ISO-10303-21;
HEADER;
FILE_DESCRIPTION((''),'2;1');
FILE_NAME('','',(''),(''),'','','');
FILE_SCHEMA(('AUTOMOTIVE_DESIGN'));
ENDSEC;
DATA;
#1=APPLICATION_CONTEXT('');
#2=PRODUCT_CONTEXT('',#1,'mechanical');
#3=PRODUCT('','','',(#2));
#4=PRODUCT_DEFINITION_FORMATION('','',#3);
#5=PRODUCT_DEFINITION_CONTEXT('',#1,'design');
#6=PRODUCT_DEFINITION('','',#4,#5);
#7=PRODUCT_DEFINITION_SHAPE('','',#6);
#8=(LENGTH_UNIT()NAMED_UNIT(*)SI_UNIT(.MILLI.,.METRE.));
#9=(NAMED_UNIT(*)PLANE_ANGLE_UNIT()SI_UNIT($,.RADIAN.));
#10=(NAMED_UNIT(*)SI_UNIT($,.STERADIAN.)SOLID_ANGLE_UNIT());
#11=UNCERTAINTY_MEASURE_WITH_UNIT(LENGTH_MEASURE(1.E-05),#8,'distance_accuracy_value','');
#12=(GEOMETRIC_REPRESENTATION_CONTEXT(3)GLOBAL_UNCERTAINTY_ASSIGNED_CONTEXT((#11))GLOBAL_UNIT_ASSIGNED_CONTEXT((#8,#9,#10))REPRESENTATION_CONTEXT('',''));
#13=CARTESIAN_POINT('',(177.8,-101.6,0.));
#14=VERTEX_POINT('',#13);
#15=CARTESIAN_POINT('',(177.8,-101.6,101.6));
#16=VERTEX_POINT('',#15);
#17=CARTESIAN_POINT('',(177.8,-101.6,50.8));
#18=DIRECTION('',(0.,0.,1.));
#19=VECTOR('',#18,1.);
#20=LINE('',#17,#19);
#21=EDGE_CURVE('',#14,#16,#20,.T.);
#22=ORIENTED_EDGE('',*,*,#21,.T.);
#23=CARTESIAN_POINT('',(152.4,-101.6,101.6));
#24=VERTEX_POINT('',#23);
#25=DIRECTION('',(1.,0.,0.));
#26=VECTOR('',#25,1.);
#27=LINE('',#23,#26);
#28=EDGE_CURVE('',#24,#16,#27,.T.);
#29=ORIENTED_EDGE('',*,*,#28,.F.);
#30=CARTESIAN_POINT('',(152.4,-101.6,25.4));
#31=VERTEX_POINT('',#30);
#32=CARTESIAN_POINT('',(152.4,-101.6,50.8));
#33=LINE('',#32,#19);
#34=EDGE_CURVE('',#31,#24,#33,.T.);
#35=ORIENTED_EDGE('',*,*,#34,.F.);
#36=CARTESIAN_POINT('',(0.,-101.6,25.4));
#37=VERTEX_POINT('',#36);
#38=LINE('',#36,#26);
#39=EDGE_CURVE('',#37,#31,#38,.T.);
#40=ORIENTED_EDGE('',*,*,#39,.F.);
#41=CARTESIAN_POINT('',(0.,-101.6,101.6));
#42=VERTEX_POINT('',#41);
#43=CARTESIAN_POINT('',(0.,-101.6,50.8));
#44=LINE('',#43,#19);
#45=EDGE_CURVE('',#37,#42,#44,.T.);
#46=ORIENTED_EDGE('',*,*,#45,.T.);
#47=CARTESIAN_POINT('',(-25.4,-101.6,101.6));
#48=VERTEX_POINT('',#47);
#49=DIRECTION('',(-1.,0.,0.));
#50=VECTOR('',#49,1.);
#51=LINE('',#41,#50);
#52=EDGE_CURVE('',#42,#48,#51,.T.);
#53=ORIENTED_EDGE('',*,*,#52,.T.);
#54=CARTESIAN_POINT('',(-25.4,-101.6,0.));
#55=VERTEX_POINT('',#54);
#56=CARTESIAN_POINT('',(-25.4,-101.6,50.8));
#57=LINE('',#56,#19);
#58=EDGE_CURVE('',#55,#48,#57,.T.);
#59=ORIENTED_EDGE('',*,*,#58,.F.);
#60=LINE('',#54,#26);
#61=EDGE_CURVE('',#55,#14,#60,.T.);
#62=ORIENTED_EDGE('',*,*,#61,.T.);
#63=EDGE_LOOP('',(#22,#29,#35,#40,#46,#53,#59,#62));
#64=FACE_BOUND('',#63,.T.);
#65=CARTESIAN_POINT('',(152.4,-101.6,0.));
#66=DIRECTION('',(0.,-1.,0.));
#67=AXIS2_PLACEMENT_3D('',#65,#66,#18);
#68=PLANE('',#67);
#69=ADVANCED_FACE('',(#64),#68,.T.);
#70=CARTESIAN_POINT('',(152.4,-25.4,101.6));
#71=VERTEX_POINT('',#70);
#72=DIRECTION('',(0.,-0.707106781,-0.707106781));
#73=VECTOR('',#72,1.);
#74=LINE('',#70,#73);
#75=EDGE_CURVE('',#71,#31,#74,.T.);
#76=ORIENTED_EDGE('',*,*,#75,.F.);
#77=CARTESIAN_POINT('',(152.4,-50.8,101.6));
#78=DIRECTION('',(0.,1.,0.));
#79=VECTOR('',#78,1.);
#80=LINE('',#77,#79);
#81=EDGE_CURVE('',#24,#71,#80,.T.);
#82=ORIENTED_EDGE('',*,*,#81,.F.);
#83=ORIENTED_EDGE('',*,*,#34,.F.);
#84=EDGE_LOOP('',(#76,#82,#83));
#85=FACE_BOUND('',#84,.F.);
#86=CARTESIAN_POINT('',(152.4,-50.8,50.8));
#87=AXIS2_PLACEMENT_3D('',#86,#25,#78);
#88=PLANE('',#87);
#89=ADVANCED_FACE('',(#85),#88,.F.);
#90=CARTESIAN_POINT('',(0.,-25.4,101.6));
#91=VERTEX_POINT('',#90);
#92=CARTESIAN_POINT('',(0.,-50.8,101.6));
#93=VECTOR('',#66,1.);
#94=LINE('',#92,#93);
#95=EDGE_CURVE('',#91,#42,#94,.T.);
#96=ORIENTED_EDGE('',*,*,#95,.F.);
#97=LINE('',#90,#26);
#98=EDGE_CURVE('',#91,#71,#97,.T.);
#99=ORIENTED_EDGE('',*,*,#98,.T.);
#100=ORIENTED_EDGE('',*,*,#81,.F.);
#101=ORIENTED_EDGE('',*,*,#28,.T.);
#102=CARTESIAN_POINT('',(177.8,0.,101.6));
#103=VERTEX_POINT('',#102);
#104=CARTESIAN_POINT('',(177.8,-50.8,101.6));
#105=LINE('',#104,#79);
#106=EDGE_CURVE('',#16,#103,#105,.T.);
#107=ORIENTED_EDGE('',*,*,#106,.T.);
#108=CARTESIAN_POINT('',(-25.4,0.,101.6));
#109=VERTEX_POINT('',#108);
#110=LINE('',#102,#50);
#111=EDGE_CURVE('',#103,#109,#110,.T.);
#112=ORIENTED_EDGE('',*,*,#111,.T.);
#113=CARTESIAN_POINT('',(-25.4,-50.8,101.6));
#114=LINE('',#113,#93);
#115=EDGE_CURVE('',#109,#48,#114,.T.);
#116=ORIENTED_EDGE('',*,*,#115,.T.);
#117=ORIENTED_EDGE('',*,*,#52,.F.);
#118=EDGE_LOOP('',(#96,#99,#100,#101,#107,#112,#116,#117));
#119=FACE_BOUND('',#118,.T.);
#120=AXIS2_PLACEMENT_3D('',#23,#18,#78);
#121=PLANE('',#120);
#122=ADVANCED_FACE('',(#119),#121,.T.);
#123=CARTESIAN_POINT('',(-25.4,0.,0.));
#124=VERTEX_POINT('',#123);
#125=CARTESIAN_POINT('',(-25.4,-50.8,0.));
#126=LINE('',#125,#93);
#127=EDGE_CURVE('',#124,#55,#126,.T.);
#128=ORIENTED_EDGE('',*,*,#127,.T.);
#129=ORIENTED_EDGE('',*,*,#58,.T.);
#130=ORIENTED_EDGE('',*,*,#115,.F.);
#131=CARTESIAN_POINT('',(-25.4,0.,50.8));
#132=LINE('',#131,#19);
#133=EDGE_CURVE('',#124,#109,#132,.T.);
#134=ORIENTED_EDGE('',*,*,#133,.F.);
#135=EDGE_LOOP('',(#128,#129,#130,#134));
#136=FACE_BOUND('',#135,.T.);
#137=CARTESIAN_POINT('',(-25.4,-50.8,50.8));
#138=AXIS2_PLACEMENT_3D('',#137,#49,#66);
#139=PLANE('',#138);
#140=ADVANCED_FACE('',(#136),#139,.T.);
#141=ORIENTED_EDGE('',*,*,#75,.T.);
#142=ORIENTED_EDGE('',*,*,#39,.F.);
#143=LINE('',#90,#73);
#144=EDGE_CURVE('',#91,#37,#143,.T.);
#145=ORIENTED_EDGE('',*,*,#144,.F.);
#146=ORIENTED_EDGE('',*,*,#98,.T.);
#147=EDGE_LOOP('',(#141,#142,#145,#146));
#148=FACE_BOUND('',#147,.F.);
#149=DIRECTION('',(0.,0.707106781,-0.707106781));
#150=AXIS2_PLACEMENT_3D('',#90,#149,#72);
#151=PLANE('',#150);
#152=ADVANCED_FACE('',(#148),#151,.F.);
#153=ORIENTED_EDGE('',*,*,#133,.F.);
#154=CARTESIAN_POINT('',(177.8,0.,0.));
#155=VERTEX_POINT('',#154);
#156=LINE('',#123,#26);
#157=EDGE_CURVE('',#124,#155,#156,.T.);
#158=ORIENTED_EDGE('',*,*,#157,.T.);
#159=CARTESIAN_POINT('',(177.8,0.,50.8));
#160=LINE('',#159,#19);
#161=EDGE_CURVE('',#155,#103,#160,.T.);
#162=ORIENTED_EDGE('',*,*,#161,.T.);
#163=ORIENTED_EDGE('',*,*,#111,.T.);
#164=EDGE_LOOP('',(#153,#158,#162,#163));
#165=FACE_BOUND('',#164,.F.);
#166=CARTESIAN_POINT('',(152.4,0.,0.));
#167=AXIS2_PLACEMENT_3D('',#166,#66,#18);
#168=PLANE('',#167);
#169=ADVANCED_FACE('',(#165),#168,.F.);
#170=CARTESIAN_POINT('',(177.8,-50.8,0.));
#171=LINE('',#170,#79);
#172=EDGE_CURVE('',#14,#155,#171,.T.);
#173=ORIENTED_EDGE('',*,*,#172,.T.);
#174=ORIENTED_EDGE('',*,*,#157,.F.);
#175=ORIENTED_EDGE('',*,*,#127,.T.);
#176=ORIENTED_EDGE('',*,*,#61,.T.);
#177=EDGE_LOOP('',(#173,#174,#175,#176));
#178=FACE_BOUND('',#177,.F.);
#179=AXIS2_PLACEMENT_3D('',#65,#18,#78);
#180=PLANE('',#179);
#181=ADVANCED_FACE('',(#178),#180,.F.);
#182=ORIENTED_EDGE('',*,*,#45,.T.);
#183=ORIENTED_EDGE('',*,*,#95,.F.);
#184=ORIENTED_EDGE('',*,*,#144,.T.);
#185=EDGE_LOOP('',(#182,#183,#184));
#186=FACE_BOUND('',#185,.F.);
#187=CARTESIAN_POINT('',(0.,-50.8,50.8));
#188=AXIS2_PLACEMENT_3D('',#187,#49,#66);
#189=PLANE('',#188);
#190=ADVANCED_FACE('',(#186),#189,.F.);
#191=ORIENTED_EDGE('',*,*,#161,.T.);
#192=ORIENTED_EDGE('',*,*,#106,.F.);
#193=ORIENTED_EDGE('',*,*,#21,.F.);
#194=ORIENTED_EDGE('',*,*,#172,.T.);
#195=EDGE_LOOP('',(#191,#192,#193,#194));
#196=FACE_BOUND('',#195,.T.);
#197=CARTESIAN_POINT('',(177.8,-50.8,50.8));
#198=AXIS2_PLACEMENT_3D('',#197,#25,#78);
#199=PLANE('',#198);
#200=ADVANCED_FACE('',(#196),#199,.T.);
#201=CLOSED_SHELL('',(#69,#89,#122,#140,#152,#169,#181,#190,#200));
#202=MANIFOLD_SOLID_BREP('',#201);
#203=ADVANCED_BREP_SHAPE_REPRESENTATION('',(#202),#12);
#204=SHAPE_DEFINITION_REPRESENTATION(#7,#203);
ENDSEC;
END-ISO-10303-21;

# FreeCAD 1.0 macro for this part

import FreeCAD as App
import Part
import Sketcher

V = App.Vector
Q = App.Units.Quantity

doc = App.newDocument("Part")
body = doc.addObject("PartDesign::Body", "Body")

sketch1 = body.newObject("Sketcher::SketchObject", "Sketch")
sketch1.AttachmentSupport = (doc.getObject("YZ_Plane"), [""])
sketch1.MapMode = "FlatFace"
sketch1.addGeometry([
    Part.LineSegment(V(-102, 0, 0), V(0, 0, 0)),
    Part.LineSegment(V(0, 0, 0), V(0, 102, 0)),
    Part.LineSegment(V(0, 102, 0), V(-25, 102, 0)),
    Part.LineSegment(V(-25, 102, 0), V(-102, 25, 0)),
    Part.LineSegment(V(-102, 25, 0), V(-102, 0, 0)),
], False)
sketch1.addConstraint([
    Sketcher.Constraint("Coincident", 0, 2, 1, 1),
    Sketcher.Constraint("Coincident", 1, 2, 2, 1),
    Sketcher.Constraint("Coincident", 2, 2, 3, 1),
    Sketcher.Constraint("Coincident", 3, 2, 4, 1),
    Sketcher.Constraint("Coincident", 4, 2, 0, 1),
    Sketcher.Constraint("Horizontal", 0),
    Sketcher.Constraint("Vertical", 1),
    Sketcher.Constraint("Horizontal", 2),
    Sketcher.Constraint("Vertical", 4),
    Sketcher.Constraint("Coincident", 0, 2, -1, 1),
    Sketcher.Constraint("Equal", 0, 1),
    Sketcher.Constraint("Equal", 2, 4),
    Sketcher.Constraint("DistanceX", 0, 1, 0, 2, Q("4 in")),
    Sketcher.Constraint("DistanceX", 2, 2, 2, 1, Q("1 in")),
])
pad1 = body.newObject("PartDesign::Pad", "Pad")
pad1.Profile = sketch1
pad1.Length = Q("6 in")

sketch2 = body.newObject("Sketcher::SketchObject", "Sketch001")
sketch2.AttachmentSupport = (doc.getObject("YZ_Plane"), [""])
sketch2.MapMode = "FlatFace"
sketch2.addGeometry([
    Part.LineSegment(V(0, 102, 0), V(0, 0, 0)),
    Part.LineSegment(V(0, 0, 0), V(-102, 0, 0)),
    Part.LineSegment(V(-102, 0, 0), V(-102, 102, 0)),
    Part.LineSegment(V(-102, 102, 0), V(0, 102, 0)),
], False)
sketch2.addConstraint([
    Sketcher.Constraint("Coincident", 0, 2, 1, 1),
    Sketcher.Constraint("Coincident", 1, 2, 2, 1),
    Sketcher.Constraint("Coincident", 2, 2, 3, 1),
    Sketcher.Constraint("Coincident", 3, 2, 0, 1),
    Sketcher.Constraint("Vertical", 0),
    Sketcher.Constraint("Horizontal", 1),
    Sketcher.Constraint("Vertical", 2),
    Sketcher.Constraint("Horizontal", 3),
    Sketcher.Constraint("Coincident", 0, 2, -1, 1),
    Sketcher.Constraint("Equal", 3, 0),
    Sketcher.Constraint("DistanceX", 1, 2, 1, 1, Q("4 in")),
])
pad2 = body.newObject("PartDesign::Pad", "Pad001")
pad2.Profile = sketch2
pad2.Length = Q("1 in")
pad2.Reversed = True

sketch3 = body.newObject("Sketcher::SketchObject", "Sketch002")
sketch3.AttachmentSupport = (doc.getObject("YZ_Plane"), [""])
sketch3.MapMode = "FlatFace"
sketch3.AttachmentOffset = App.Placement(V(0, 0, 6 * 25.4), App.Rotation())
sketch3.addGeometry([
    Part.LineSegment(V(-102, 102, 0), V(-102, 0, 0)),
    Part.LineSegment(V(-102, 0, 0), V(0, 0, 0)),
    Part.LineSegment(V(0, 0, 0), V(0, 102, 0)),
    Part.LineSegment(V(0, 102, 0), V(-102, 102, 0)),
], False)
sketch3.addConstraint([
    Sketcher.Constraint("Coincident", 0, 2, 1, 1),
    Sketcher.Constraint("Coincident", 1, 2, 2, 1),
    Sketcher.Constraint("Coincident", 2, 2, 3, 1),
    Sketcher.Constraint("Coincident", 3, 2, 0, 1),
    Sketcher.Constraint("Vertical", 0),
    Sketcher.Constraint("Horizontal", 1),
    Sketcher.Constraint("Vertical", 2),
    Sketcher.Constraint("Horizontal", 3),
    Sketcher.Constraint("Coincident", 1, 2, -1, 1),
    Sketcher.Constraint("Equal", 3, 0),
    Sketcher.Constraint("DistanceX", 1, 1, 1, 2, Q("4 in")),
])
pad3 = body.newObject("PartDesign::Pad", "Pad002")
pad3.Profile = sketch3
pad3.Length = Q("1 in")

doc.recompute()
